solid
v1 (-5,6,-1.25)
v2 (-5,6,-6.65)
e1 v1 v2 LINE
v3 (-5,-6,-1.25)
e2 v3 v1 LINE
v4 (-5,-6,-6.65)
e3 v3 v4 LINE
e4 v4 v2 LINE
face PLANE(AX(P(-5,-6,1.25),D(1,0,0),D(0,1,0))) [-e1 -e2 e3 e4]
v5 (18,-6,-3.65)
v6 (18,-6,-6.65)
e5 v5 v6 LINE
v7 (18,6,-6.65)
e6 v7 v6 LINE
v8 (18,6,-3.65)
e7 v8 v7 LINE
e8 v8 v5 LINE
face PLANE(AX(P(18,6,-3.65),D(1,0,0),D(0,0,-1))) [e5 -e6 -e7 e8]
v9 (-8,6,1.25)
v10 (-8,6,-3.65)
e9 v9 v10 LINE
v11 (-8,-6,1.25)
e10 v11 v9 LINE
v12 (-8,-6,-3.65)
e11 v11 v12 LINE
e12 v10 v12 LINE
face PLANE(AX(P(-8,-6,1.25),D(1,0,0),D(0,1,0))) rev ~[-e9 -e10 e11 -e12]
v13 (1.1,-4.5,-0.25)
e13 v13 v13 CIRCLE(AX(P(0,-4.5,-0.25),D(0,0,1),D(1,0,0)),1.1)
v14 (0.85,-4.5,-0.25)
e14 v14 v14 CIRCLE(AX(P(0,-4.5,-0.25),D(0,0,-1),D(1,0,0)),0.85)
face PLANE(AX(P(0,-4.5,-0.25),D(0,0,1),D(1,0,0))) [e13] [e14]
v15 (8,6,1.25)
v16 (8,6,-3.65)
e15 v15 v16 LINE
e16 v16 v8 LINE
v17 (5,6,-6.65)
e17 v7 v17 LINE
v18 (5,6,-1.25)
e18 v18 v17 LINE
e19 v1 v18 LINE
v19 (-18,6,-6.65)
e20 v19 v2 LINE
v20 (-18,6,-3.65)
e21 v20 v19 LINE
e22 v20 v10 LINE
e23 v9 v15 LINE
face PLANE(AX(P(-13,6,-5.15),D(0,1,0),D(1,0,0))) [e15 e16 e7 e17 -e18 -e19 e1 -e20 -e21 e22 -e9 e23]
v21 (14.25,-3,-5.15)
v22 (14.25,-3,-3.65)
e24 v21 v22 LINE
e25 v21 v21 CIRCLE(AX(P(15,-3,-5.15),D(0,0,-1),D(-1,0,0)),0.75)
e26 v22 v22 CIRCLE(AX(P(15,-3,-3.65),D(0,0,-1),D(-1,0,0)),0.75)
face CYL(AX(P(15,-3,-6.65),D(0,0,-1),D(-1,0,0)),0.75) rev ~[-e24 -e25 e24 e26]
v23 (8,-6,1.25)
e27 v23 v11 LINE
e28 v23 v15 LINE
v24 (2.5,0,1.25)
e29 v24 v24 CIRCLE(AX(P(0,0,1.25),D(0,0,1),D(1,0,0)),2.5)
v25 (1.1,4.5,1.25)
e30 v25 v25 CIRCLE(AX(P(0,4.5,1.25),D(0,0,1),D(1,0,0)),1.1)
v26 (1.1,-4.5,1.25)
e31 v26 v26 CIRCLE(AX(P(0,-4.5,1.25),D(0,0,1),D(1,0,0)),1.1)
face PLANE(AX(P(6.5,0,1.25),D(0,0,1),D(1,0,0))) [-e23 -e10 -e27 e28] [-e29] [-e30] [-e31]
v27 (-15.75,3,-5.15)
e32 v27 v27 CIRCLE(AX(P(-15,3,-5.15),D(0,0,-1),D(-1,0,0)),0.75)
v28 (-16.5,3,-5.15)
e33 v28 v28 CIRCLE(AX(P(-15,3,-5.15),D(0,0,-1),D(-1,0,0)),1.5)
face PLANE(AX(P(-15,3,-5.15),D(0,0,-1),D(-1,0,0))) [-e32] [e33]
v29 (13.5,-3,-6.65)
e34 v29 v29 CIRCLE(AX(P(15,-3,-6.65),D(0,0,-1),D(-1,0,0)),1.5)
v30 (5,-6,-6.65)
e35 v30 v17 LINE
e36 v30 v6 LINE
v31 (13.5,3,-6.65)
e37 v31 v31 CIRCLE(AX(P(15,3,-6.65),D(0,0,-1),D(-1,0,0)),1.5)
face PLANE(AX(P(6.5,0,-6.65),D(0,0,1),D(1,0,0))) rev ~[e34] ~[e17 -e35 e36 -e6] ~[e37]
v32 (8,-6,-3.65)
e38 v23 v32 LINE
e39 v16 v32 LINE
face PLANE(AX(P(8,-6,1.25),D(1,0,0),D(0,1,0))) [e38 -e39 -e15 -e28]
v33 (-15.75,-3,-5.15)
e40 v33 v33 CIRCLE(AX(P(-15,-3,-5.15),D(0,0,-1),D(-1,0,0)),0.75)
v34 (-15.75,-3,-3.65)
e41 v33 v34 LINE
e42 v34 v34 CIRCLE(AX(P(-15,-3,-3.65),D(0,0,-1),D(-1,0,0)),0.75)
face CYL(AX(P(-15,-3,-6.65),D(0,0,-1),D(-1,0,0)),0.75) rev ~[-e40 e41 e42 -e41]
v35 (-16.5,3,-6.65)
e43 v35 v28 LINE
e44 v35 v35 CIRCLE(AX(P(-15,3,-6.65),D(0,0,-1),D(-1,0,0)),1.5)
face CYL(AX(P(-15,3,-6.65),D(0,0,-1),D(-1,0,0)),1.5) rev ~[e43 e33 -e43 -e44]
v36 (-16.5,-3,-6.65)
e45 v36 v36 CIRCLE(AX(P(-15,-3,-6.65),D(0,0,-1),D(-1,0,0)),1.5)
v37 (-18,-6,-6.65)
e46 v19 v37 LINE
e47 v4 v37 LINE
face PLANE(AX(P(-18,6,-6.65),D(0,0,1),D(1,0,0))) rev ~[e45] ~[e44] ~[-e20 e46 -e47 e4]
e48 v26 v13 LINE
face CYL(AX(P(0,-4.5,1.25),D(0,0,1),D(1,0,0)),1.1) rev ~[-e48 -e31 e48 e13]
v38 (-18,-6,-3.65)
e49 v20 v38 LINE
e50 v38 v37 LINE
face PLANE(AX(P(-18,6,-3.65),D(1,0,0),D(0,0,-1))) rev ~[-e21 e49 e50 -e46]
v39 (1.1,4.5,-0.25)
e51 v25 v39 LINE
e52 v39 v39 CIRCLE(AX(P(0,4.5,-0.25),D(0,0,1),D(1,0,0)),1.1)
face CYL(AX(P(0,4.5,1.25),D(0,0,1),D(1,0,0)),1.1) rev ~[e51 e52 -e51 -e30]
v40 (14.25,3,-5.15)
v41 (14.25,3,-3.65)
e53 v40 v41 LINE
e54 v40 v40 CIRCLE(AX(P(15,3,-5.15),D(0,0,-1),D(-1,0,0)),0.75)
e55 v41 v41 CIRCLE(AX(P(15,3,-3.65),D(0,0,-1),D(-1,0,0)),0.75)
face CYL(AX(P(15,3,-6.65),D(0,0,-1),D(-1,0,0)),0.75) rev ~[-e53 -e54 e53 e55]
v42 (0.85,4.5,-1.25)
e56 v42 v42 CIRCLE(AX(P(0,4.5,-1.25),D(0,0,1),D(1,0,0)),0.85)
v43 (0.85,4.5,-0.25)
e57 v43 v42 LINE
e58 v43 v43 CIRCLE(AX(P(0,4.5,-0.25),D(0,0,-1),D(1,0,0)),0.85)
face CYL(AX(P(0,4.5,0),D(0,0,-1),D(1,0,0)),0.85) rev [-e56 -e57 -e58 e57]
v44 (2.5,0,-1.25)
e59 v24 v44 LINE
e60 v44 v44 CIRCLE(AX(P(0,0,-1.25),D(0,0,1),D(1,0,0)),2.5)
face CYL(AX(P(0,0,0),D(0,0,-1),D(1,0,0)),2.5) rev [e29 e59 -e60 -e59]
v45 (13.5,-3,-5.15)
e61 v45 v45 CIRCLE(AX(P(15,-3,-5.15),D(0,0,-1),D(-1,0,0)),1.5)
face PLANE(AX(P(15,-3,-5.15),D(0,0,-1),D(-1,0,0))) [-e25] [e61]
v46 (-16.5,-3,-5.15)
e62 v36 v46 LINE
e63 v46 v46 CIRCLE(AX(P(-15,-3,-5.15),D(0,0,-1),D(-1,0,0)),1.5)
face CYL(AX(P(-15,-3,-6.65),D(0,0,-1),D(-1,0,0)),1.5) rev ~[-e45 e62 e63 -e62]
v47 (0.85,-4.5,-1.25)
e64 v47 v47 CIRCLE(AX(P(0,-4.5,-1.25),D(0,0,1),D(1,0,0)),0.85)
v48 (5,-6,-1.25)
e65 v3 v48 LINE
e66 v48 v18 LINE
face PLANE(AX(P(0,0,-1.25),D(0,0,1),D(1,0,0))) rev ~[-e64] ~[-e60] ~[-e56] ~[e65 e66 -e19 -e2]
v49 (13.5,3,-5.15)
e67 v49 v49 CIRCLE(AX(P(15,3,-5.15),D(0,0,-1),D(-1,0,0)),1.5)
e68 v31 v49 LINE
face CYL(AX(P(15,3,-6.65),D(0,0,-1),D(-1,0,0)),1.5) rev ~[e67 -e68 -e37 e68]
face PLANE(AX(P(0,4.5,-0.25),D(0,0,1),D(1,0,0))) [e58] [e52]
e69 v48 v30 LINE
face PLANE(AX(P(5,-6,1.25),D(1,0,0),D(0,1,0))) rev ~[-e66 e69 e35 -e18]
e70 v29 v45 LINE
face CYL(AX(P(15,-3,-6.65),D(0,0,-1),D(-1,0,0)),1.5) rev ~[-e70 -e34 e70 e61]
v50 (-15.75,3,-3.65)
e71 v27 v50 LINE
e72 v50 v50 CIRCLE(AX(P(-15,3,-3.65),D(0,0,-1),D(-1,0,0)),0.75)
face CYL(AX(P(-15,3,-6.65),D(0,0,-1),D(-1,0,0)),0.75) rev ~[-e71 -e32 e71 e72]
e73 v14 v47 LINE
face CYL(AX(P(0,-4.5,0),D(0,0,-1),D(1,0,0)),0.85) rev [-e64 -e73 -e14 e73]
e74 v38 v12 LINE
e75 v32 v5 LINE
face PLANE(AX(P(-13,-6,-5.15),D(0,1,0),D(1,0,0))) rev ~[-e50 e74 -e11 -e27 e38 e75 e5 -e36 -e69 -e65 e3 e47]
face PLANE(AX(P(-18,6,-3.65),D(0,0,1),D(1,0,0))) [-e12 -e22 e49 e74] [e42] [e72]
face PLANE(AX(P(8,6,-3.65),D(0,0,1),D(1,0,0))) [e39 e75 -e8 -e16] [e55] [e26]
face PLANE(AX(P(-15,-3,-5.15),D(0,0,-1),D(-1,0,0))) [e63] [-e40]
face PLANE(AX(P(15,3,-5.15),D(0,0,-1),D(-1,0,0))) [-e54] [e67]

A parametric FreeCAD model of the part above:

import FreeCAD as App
import Part
import Sketcher
Q = App.Units.Quantity


def add_polygon(sketch, points):
    """Adds a closed chain of lines whose ends are joined by coincident constraints."""
    first, n = sketch.GeometryCount, len(points)
    for a, b in zip(points, points[1:] + points[:1]):
        sketch.addGeometry(Part.LineSegment(App.Vector(*a, 0), App.Vector(*b, 0)), False)
    for i in range(n):
        sketch.addConstraint(Sketcher.Constraint("Coincident", first + i, 2, first + (i + 1) % n, 1))

doc = App.newDocument("Part")
params = doc.addObject("Spreadsheet::Sheet", "Params")
for row, (alias, value) in enumerate([
    ("sketch1_diameter", "5 mm"),
    ("sketch1_diameter2", "1.7 mm"),
    ("sketch1_width", "10 mm"),
    ("sketch1_height", "12 mm"),
    ("pad1_length", "2.5 mm"),
    ("sketch2_diameter", "2.2 mm"),
    ("pocket1_length", "1.5 mm"),
    ("sketch3_width", "3 mm"),
    ("sketch3_height", "12 mm"),
    ("pad2_length", "7.9 mm"),
    ("sketch4_width", "10 mm"),
    ("sketch4_height", "3 mm"),
    ("pad3_length", "12 mm"),
    ("sketch5_diameter", "1.5 mm"),
    ("sketch6_diameter", "3 mm"),
    ("pocket3_length", "1.5 mm"),
], start=1):
    params.set(f"A{row}", alias)
    params.set(f"B{row}", "=" + value)
    params.setAlias(f"B{row}", alias)

body = doc.addObject("PartDesign::Body", "Body")

# Sketch on XY plane
sketch1 = body.newObject("Sketcher::SketchObject", "Sketch")
sketch1.AttachmentSupport = (doc.getObject("XY_Plane"), [""])
sketch1.MapMode = "FlatFace"
add_polygon(sketch1, [(-5, 6), (-5, -6), (5, -6), (5, 6)])  # lines 0-3
sketch1.addGeometry(Part.Circle(App.Vector(0, -4.5, 0), App.Vector(0, 0, 1), 0.85), False)  # 4
sketch1.addGeometry(Part.Circle(App.Vector(0, 0, 0), App.Vector(0, 0, 1), 2.5), False)  # 5
sketch1.addGeometry(Part.Circle(App.Vector(0, 4.5, 0), App.Vector(0, 0, 1), 0.85), False)  # 6
sketch1.addConstraint(Sketcher.Constraint("Vertical", 0))
sketch1.addConstraint(Sketcher.Constraint("Horizontal", 1))
sketch1.addConstraint(Sketcher.Constraint("Vertical", 2))
sketch1.addConstraint(Sketcher.Constraint("Horizontal", 3))
sketch1.addConstraint(Sketcher.Constraint("Coincident", 5, 3, -1, 1))
sketch1.addConstraint(Sketcher.Constraint("Equal", 4, 6))
sketch1.addConstraint(Sketcher.Constraint("Symmetric", 4, 3, 6, 3, -1, 1))
sketch1.addConstraint(Sketcher.Constraint("Symmetric", 0, 2, 2, 2, -1, 1))
sketch1.addConstraint(Sketcher.Constraint("PointOnObject", 4, 3, -2))
sketch1.addConstraint(Sketcher.Constraint("Diameter", 5, Q("5 mm")))
sketch1.addConstraint(Sketcher.Constraint("Diameter", 4, Q("1.7 mm")))
sketch1.addConstraint(Sketcher.Constraint("DistanceX", 1, 1, 1, 2, Q("10 mm")))
sketch1.addConstraint(Sketcher.Constraint("DistanceY", 0, 2, 0, 1, Q("12 mm")))
sketch1.addConstraint(Sketcher.Constraint("DistanceY", 4, 3, 6, 3, Q("9 mm")))
sketch1.setExpression("Constraints[13]", "Params.sketch1_diameter")
sketch1.setExpression("Constraints[14]", "Params.sketch1_diameter2")
sketch1.setExpression("Constraints[15]", "Params.sketch1_width")
sketch1.setExpression("Constraints[16]", "Params.sketch1_height")
pad1 = body.newObject("PartDesign::Pad", "Pad")
pad1.Profile = sketch1
pad1.setExpression("Length", "Params.pad1_length")
pad1.Midplane = True

# Sketch on XY plane
sketch2 = body.newObject("Sketcher::SketchObject", "Sketch001")
sketch2.AttachmentSupport = (doc.getObject("XY_Plane"), [""])
sketch2.MapMode = "FlatFace"
sketch2.AttachmentOffset = App.Placement(App.Vector(0, 0, 1.25), App.Rotation())
sketch2.addGeometry(Part.Circle(App.Vector(0, 4.5, 0), App.Vector(0, 0, 1), 1.1), False)
sketch2.addGeometry(Part.Circle(App.Vector(0, -4.5, 0), App.Vector(0, 0, 1), 1.1), False)
sketch2.addConstraint(Sketcher.Constraint("Equal", 0, 1))
sketch2.addConstraint(Sketcher.Constraint("Symmetric", 0, 3, 1, 3, -1, 1))
sketch2.addConstraint(Sketcher.Constraint("PointOnObject", 0, 3, -2))
sketch2.addConstraint(Sketcher.Constraint("Diameter", 0, Q("2.2 mm")))
sketch2.addConstraint(Sketcher.Constraint("DistanceY", 1, 3, 0, 3, Q("9 mm")))
sketch2.setExpression("Constraints[3]", "Params.sketch2_diameter")
pocket1 = body.newObject("PartDesign::Pocket", "Pocket")
pocket1.Profile = sketch2
pocket1.setExpression("Length", "Params.pocket1_length")

# Sketch on XY plane
sketch3 = body.newObject("Sketcher::SketchObject", "Sketch002")
sketch3.AttachmentSupport = (doc.getObject("XY_Plane"), [""])
sketch3.MapMode = "FlatFace"
sketch3.AttachmentOffset = App.Placement(App.Vector(0, 0, 1.25), App.Rotation())
add_polygon(sketch3, [(5, 6), (5, -6), (8, -6), (8, 6)])  # lines 0-3
add_polygon(sketch3, [(-8, 6), (-8, -6), (-5, -6), (-5, 6)])  # lines 4-7
sketch3.addConstraint(Sketcher.Constraint("Vertical", 0))
sketch3.addConstraint(Sketcher.Constraint("Horizontal", 1))
sketch3.addConstraint(Sketcher.Constraint("Vertical", 2))
sketch3.addConstraint(Sketcher.Constraint("Horizontal", 3))
sketch3.addConstraint(Sketcher.Constraint("Vertical", 4))
sketch3.addConstraint(Sketcher.Constraint("Horizontal", 5))
sketch3.addConstraint(Sketcher.Constraint("Vertical", 6))
sketch3.addConstraint(Sketcher.Constraint("Horizontal", 7))
sketch3.addConstraint(Sketcher.Constraint("Symmetric", 2, 2, 4, 2, -1, 1))
sketch3.addConstraint(Sketcher.Constraint("Symmetric", 0, 2, 6, 2, -1, 1))
sketch3.addConstraint(Sketcher.Constraint("Horizontal", 1, 2, 4, 2))
sketch3.addConstraint(Sketcher.Constraint("DistanceX", 1, 1, 1, 2, Q("3 mm")))
sketch3.addConstraint(Sketcher.Constraint("DistanceY", 0, 2, 0, 1, Q("12 mm")))
sketch3.addConstraint(Sketcher.Constraint("DistanceX", -1, 1, 0, 2, Q("5 mm")))
sketch3.setExpression("Constraints[19]", "Params.sketch3_width")
sketch3.setExpression("Constraints[20]", "Params.sketch3_height")
pad2 = body.newObject("PartDesign::Pad", "Pad001")
pad2.Profile = sketch3
pad2.setExpression("Length", "Params.pad2_length")
pad2.Reversed = True

# Sketch on XZ plane
sketch4 = body.newObject("Sketcher::SketchObject", "Sketch003")
sketch4.AttachmentSupport = (doc.getObject("XZ_Plane"), [""])
sketch4.MapMode = "FlatFace"
sketch4.AttachmentOffset = App.Placement(App.Vector(0, 0, -6), App.Rotation())
add_polygon(sketch4, [(-18, -6.65), (-18, -3.65), (-8, -3.65), (-8, -6.65)])  # lines 0-3
add_polygon(sketch4, [(8, -6.65), (8, -3.65), (18, -3.65), (18, -6.65)])  # lines 4-7
sketch4.addConstraint(Sketcher.Constraint("Vertical", 0))
sketch4.addConstraint(Sketcher.Constraint("Horizontal", 1))
sketch4.addConstraint(Sketcher.Constraint("Vertical", 2))
sketch4.addConstraint(Sketcher.Constraint("Horizontal", 3))
sketch4.addConstraint(Sketcher.Constraint("Vertical", 4))
sketch4.addConstraint(Sketcher.Constraint("Horizontal", 5))
sketch4.addConstraint(Sketcher.Constraint("Vertical", 6))
sketch4.addConstraint(Sketcher.Constraint("Horizontal", 7))
sketch4.addConstraint(Sketcher.Constraint("Symmetric", 1, 2, 4, 2, -2))
sketch4.addConstraint(Sketcher.Constraint("Symmetric", 3, 2, 6, 2, -2))
sketch4.addConstraint(Sketcher.Constraint("DistanceX", 1, 1, 1, 2, Q("10 mm")))
sketch4.addConstraint(Sketcher.Constraint("DistanceY", 0, 1, 0, 2, Q("3 mm")))
sketch4.addConstraint(Sketcher.Constraint("DistanceX", 0, 2, -1, 1, Q("18 mm")))
sketch4.addConstraint(Sketcher.Constraint("DistanceY", 0, 2, -1, 1, Q("3.65 mm")))
sketch4.setExpression("Constraints[18]", "Params.sketch4_width")
sketch4.setExpression("Constraints[19]", "Params.sketch4_height")
pad3 = body.newObject("PartDesign::Pad", "Pad002")
pad3.Profile = sketch4
pad3.setExpression("Length", "Params.pad3_length")

# Sketch on XY plane
sketch5 = body.newObject("Sketcher::SketchObject", "Sketch004")
sketch5.AttachmentSupport = (doc.getObject("XY_Plane"), [""])
sketch5.MapMode = "FlatFace"
sketch5.AttachmentOffset = App.Placement(App.Vector(0, 0, -6.65), App.Rotation())
sketch5.addGeometry(Part.Circle(App.Vector(-15, -3, 0), App.Vector(0, 0, 1), 0.75), False)
sketch5.addGeometry(Part.Circle(App.Vector(-15, 3, 0), App.Vector(0, 0, 1), 0.75), False)
sketch5.addGeometry(Part.Circle(App.Vector(15, -3, 0), App.Vector(0, 0, 1), 0.75), False)
sketch5.addGeometry(Part.Circle(App.Vector(15, 3, 0), App.Vector(0, 0, 1), 0.75), False)
sketch5.addConstraint(Sketcher.Constraint("Equal", 0, 1))
sketch5.addConstraint(Sketcher.Constraint("Equal", 1, 2))
sketch5.addConstraint(Sketcher.Constraint("Equal", 2, 3))
sketch5.addConstraint(Sketcher.Constraint("Symmetric", 1, 3, 2, 3, -1, 1))
sketch5.addConstraint(Sketcher.Constraint("Symmetric", 0, 3, 3, 3, -1, 1))
sketch5.addConstraint(Sketcher.Constraint("Symmetric", 0, 3, 2, 3, -2))
sketch5.addConstraint(Sketcher.Constraint("Diameter", 0, Q("1.5 mm")))
sketch5.addConstraint(Sketcher.Constraint("DistanceX", 0, 3, -1, 1, Q("15 mm")))
sketch5.addConstraint(Sketcher.Constraint("DistanceY", 0, 3, -1, 1, Q("3 mm")))
sketch5.setExpression("Constraints[6]", "Params.sketch5_diameter")
pocket2 = body.newObject("PartDesign::Pocket", "Pocket001")
pocket2.Profile = sketch5
pocket2.Type = "ThroughAll"
pocket2.Reversed = True

# Sketch on XY plane
sketch6 = body.newObject("Sketcher::SketchObject", "Sketch005")
sketch6.AttachmentSupport = (doc.getObject("XY_Plane"), [""])
sketch6.MapMode = "FlatFace"
sketch6.AttachmentOffset = App.Placement(App.Vector(0, 0, -6.65), App.Rotation())
sketch6.addGeometry(Part.Circle(App.Vector(-15, 3, 0), App.Vector(0, 0, 1), 1.5), False)
sketch6.addGeometry(Part.Circle(App.Vector(-15, -3, 0), App.Vector(0, 0, 1), 1.5), False)
sketch6.addGeometry(Part.Circle(App.Vector(15, 3, 0), App.Vector(0, 0, 1), 1.5), False)
sketch6.addGeometry(Part.Circle(App.Vector(15, -3, 0), App.Vector(0, 0, 1), 1.5), False)
sketch6.addConstraint(Sketcher.Constraint("Equal", 0, 1))
sketch6.addConstraint(Sketcher.Constraint("Equal", 1, 2))
sketch6.addConstraint(Sketcher.Constraint("Equal", 2, 3))
sketch6.addConstraint(Sketcher.Constraint("Symmetric", 1, 3, 2, 3, -1, 1))
sketch6.addConstraint(Sketcher.Constraint("Symmetric", 0, 3, 3, 3, -1, 1))
sketch6.addConstraint(Sketcher.Constraint("Symmetric", 0, 3, 2, 3, -2))
sketch6.addConstraint(Sketcher.Constraint("Diameter", 0, Q("3 mm")))
sketch6.addConstraint(Sketcher.Constraint("DistanceX", 0, 3, -1, 1, Q("15 mm")))
sketch6.addConstraint(Sketcher.Constraint("DistanceY", -1, 1, 0, 3, Q("3 mm")))
sketch6.setExpression("Constraints[6]", "Params.sketch6_diameter")
pocket3 = body.newObject("PartDesign::Pocket", "Pocket002")
pocket3.Profile = sketch6
pocket3.setExpression("Length", "Params.pocket3_length")
pocket3.Reversed = True

doc.recompute()
